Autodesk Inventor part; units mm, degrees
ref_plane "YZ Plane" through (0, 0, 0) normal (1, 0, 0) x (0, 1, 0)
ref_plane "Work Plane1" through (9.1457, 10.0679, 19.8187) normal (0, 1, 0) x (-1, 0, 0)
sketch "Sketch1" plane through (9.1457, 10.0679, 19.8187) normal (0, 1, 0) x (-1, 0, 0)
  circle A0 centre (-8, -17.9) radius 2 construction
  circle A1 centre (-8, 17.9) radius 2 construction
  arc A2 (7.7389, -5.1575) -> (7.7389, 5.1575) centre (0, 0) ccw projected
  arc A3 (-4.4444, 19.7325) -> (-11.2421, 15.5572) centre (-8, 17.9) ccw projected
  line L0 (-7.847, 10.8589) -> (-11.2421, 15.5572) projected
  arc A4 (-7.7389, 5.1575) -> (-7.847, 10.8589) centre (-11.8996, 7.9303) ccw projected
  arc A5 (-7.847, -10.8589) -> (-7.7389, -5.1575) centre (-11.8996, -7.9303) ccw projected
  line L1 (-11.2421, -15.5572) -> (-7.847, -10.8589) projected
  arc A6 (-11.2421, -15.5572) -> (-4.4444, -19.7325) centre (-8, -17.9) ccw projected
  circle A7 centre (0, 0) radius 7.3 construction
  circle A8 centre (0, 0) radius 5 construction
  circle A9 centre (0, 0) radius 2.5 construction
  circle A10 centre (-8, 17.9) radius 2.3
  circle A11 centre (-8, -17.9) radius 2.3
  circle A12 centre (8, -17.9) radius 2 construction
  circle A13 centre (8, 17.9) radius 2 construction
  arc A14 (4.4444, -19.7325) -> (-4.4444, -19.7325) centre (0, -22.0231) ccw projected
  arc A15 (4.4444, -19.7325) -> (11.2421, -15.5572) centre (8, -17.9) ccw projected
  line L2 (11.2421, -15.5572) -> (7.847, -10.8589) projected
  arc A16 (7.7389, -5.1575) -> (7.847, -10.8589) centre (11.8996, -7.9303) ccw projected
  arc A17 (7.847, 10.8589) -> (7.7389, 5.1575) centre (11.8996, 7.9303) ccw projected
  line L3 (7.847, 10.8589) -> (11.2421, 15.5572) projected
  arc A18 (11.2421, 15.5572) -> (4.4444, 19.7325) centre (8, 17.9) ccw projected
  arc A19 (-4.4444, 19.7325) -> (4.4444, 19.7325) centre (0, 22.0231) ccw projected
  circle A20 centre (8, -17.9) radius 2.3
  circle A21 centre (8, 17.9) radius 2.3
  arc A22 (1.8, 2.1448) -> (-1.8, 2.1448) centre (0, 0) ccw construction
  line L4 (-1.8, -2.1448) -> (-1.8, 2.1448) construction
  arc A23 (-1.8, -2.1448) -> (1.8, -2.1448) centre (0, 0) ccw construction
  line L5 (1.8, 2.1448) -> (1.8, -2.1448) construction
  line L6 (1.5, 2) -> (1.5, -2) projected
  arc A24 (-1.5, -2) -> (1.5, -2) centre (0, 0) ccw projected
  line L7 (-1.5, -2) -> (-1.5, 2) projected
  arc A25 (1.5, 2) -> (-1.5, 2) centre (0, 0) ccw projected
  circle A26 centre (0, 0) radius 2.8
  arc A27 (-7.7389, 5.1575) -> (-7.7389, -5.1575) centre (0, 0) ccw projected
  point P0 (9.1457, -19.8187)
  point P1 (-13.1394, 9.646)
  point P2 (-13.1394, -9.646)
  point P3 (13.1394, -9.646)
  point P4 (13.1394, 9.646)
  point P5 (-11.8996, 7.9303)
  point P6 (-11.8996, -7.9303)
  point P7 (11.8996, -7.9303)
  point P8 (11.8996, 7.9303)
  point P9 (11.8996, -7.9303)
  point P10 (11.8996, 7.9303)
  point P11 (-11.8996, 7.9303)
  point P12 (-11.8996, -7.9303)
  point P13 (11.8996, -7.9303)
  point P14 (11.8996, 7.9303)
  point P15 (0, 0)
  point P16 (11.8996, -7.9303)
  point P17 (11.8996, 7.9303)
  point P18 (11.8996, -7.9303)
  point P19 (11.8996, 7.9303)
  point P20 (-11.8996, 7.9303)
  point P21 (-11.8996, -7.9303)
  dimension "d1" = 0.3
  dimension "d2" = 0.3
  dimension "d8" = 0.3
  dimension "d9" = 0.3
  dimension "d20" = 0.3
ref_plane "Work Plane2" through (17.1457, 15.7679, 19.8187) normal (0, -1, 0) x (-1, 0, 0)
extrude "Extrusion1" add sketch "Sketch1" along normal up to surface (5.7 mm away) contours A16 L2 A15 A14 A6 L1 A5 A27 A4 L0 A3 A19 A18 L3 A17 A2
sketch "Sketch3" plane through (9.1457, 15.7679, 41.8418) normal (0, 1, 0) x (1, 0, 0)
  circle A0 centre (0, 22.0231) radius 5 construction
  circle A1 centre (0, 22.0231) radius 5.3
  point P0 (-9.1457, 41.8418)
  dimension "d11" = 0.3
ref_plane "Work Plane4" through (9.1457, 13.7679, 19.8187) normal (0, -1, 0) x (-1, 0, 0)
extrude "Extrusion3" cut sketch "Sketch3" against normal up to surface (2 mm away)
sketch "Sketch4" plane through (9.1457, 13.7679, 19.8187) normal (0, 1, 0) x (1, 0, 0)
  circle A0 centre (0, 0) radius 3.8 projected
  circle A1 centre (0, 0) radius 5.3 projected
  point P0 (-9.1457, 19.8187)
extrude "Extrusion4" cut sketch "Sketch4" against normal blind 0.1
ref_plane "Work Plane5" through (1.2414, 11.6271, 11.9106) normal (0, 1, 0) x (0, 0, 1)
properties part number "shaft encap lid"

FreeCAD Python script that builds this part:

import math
import FreeCAD as App
import Part
import Sketcher
from FreeCAD import Vector

doc = App.newDocument("Part")
body = doc.addObject("PartDesign::Body", "Body")

# Sketch on XZ plane
sketch1 = body.newObject("Sketcher::SketchObject", "Sketch")
sketch1.AttachmentSupport = (doc.getObject("XZ_Plane"), [""])
sketch1.MapMode = "FlatFace"
sketch1.AttachmentOffset = App.Placement(Vector(0, 0, -10.0679), App.Rotation())
sketch1.addGeometry([
    Part.ArcOfCircle(Part.Circle(Vector(-2.8, 11.9, 0), Vector(0, 0, 1), 5), math.radians(-36), math.radians(34)),  # 0
    Part.ArcOfCircle(Part.Circle(Vector(9.1, 19.8, 0), Vector(0, 0, 1), 9.3), math.radians(146), math.radians(214)),  # 1
    Part.ArcOfCircle(Part.Circle(Vector(-2.8, 27.7, 0), Vector(0, 0, 1), 5), math.radians(-34), math.radians(36)),  # 2
    Part.LineSegment(Vector(1.3, 30.7, 0), Vector(-2.1, 35.4, 0)),  # 3
    Part.ArcOfCircle(Part.Circle(Vector(1.1, 37.7, 0), Vector(0, 0, 1), 4), math.radians(27), math.radians(216)),  # 4
    Part.ArcOfCircle(Part.Circle(Vector(9.1, 41.8, 0), Vector(0, 0, 1), 5), math.radians(-153), math.radians(-27)),  # 5
    Part.ArcOfCircle(Part.Circle(Vector(17.1, 37.7, 0), Vector(0, 0, 1), 4), math.radians(-36), math.radians(153)),  # 6
    Part.LineSegment(Vector(20.4, 35.4, 0), Vector(17, 30.7, 0)),  # 7
    Part.ArcOfCircle(Part.Circle(Vector(21, 27.7, 0), Vector(0, 0, 1), 5), math.radians(144), math.radians(214)),  # 8
    Part.ArcOfCircle(Part.Circle(Vector(9.1, 19.8, 0), Vector(0, 0, 1), 9.3), math.radians(-34), math.radians(34)),  # 9
    Part.ArcOfCircle(Part.Circle(Vector(21, 11.9, 0), Vector(0, 0, 1), 5), math.radians(146), math.radians(216)),  # 10
    Part.LineSegment(Vector(17, 9, 0), Vector(20.4, 4.3, 0)),  # 11
    Part.ArcOfCircle(Part.Circle(Vector(17.1, 1.9, 0), Vector(0, 0, 1), 4), math.radians(-153), math.radians(36)),  # 12
    Part.ArcOfCircle(Part.Circle(Vector(9.1, -2.2, 0), Vector(0, 0, 1), 5), math.radians(27), math.radians(153)),  # 13
    Part.ArcOfCircle(Part.Circle(Vector(1.1, 1.9, 0), Vector(0, 0, 1), 4), math.radians(144), math.radians(333)),  # 14
    Part.LineSegment(Vector(-2.1, 4.3, 0), Vector(1.3, 9, 0)),  # 15
    Part.Circle(Vector(17.1, 1.9, 0), Vector(0, 0, 1), 2.3),  # 16
    Part.Circle(Vector(1.1, 1.9, 0), Vector(0, 0, 1), 2.3),  # 17
    Part.Circle(Vector(17.1, 37.7, 0), Vector(0, 0, 1), 2.3),  # 18
    Part.Circle(Vector(9.1, 19.8, 0), Vector(0, 0, 1), 2.8),  # 19
    Part.Circle(Vector(1.1, 37.7, 0), Vector(0, 0, 1), 2.3),  # 20
], False)
sketch1.addConstraint([
    Sketcher.Constraint("Tangent", 0, 2, 1, 2),
    Sketcher.Constraint("Tangent", 1, 1, 2, 1),
    Sketcher.Constraint("Tangent", 2, 2, 3, 1),
    Sketcher.Constraint("Tangent", 3, 2, 4, 2),
    Sketcher.Constraint("Tangent", 4, 1, 5, 1),
    Sketcher.Constraint("Tangent", 5, 2, 6, 2),
    Sketcher.Constraint("Tangent", 6, 1, 7, 1),
    Sketcher.Constraint("Tangent", 7, 2, 8, 1),
    Sketcher.Constraint("Tangent", 8, 2, 9, 2),
    Sketcher.Constraint("Tangent", 9, 1, 10, 1),
    Sketcher.Constraint("Tangent", 10, 2, 11, 1),
    Sketcher.Constraint("Tangent", 11, 2, 12, 2),
    Sketcher.Constraint("Tangent", 12, 1, 13, 1),
    Sketcher.Constraint("Tangent", 13, 2, 14, 2),
    Sketcher.Constraint("Tangent", 14, 1, 15, 1),
    Sketcher.Constraint("Tangent", 15, 2, 0, 1),
    Sketcher.Constraint("Coincident", 9, 3, 1, 3),
    Sketcher.Constraint("Coincident", 16, 3, 12, 3),
    Sketcher.Constraint("Coincident", 17, 3, 14, 3),
    Sketcher.Constraint("Coincident", 18, 3, 6, 3),
    Sketcher.Constraint("Coincident", 19, 3, 1, 3),
    Sketcher.Constraint("Coincident", 20, 3, 4, 3),
    Sketcher.Constraint("Equal", 0, 2),
    Sketcher.Constraint("Equal", 2, 5),
    Sketcher.Constraint("Equal", 4, 6),
    Sketcher.Constraint("Equal", 5, 8),
    Sketcher.Constraint("Equal", 1, 9),
    Sketcher.Constraint("Equal", 8, 10),
    Sketcher.Constraint("Equal", 6, 12),
    Sketcher.Constraint("Equal", 10, 13),
    Sketcher.Constraint("Equal", 12, 14),
    Sketcher.Constraint("Equal", 16, 17),
    Sketcher.Constraint("Equal", 17, 18),
    Sketcher.Constraint("Equal", 18, 20),
    Sketcher.Constraint("Parallel", 3, 11),
    Sketcher.Constraint("Parallel", 7, 15),
    Sketcher.Constraint("Horizontal", 4, 3, 6, 3),
    Sketcher.Constraint("Horizontal", 2, 3, 8, 3),
    Sketcher.Constraint("Horizontal", 0, 3, 10, 3),
    Sketcher.Constraint("Horizontal", 12, 3, 14, 3),
    Sketcher.Constraint("Horizontal", 3, 2, 6, 1),
    Sketcher.Constraint("Vertical", 0, 3, 2, 3),
    Sketcher.Constraint("Vertical", 6, 3, 12, 3),
    Sketcher.Constraint("Radius", 0, 5.0),
    Sketcher.Constraint("Radius", 4, 4.0),
    Sketcher.Constraint("Diameter", 16, 4.6),
    Sketcher.Constraint("Diameter", 19, 5.6),
    Sketcher.Constraint("Radius", 1, 9.3),
    Sketcher.Constraint("DistanceX", 4, 3, 1, 3, 8.0),
    Sketcher.Constraint("DistanceY", 1, 3, 4, 3, 17.9),
    Sketcher.Constraint("DistanceX", -1, 1, 5, 2, 13.59),
    Sketcher.Constraint("DistanceX", 0, 3, -1, 1, 2.754),
    Sketcher.Constraint("DistanceY", -1, 1, 2, 3, 27.749),
])
pad1 = body.newObject("PartDesign::Pad", "Pad")
pad1.Profile = sketch1
pad1.Length = 5.7
pad1.Reversed = True

# Sketch on XZ plane
sketch2 = body.newObject("Sketcher::SketchObject", "Sketch001")
sketch2.AttachmentSupport = (doc.getObject("XZ_Plane"), [""])
sketch2.MapMode = "FlatFace"
sketch2.AttachmentOffset = App.Placement(Vector(0, 0, -15.7679), App.Rotation())
sketch2.addGeometry(Part.Circle(Vector(9, 20, 0), Vector(0, 0, 1), 5), False)
sketch2.addConstraint([
    Sketcher.Constraint("Diameter", 0, 10.6),
    Sketcher.Constraint("DistanceX", -1, 1, 0, 3, 9.1457),
    Sketcher.Constraint("DistanceY", -1, 1, 0, 3, 19.8187),
])
pocket1 = body.newObject("PartDesign::Pocket", "Pocket")
pocket1.Profile = sketch2
pocket1.Length = 2
pocket1.Reversed = True

# Sketch on XZ plane
sketch3 = body.newObject("Sketcher::SketchObject", "Sketch002")
sketch3.AttachmentSupport = (doc.getObject("XZ_Plane"), [""])
sketch3.MapMode = "FlatFace"
sketch3.AttachmentOffset = App.Placement(Vector(0, 0, -13.7679), App.Rotation())
sketch3.addGeometry([
    Part.Circle(Vector(9.1, 19.8, 0), Vector(0, 0, 1), 5.3),
    Part.Circle(Vector(9.1, 19.8, 0), Vector(0, 0, 1), 3.8),
], False)
sketch3.addConstraint([
    Sketcher.Constraint("Coincident", 1, 3, 0, 3),
    Sketcher.Constraint("Diameter", 0, 10.6),
    Sketcher.Constraint("Diameter", 1, 7.6),
    Sketcher.Constraint("DistanceX", -1, 1, 0, 3, 9.1457),
    Sketcher.Constraint("DistanceY", -1, 1, 0, 3, 19.8187),
])
pocket2 = body.newObject("PartDesign::Pocket", "Pocket001")
pocket2.Profile = sketch3
pocket2.Length = 0.1
pocket2.Reversed = True

doc.recompute()
